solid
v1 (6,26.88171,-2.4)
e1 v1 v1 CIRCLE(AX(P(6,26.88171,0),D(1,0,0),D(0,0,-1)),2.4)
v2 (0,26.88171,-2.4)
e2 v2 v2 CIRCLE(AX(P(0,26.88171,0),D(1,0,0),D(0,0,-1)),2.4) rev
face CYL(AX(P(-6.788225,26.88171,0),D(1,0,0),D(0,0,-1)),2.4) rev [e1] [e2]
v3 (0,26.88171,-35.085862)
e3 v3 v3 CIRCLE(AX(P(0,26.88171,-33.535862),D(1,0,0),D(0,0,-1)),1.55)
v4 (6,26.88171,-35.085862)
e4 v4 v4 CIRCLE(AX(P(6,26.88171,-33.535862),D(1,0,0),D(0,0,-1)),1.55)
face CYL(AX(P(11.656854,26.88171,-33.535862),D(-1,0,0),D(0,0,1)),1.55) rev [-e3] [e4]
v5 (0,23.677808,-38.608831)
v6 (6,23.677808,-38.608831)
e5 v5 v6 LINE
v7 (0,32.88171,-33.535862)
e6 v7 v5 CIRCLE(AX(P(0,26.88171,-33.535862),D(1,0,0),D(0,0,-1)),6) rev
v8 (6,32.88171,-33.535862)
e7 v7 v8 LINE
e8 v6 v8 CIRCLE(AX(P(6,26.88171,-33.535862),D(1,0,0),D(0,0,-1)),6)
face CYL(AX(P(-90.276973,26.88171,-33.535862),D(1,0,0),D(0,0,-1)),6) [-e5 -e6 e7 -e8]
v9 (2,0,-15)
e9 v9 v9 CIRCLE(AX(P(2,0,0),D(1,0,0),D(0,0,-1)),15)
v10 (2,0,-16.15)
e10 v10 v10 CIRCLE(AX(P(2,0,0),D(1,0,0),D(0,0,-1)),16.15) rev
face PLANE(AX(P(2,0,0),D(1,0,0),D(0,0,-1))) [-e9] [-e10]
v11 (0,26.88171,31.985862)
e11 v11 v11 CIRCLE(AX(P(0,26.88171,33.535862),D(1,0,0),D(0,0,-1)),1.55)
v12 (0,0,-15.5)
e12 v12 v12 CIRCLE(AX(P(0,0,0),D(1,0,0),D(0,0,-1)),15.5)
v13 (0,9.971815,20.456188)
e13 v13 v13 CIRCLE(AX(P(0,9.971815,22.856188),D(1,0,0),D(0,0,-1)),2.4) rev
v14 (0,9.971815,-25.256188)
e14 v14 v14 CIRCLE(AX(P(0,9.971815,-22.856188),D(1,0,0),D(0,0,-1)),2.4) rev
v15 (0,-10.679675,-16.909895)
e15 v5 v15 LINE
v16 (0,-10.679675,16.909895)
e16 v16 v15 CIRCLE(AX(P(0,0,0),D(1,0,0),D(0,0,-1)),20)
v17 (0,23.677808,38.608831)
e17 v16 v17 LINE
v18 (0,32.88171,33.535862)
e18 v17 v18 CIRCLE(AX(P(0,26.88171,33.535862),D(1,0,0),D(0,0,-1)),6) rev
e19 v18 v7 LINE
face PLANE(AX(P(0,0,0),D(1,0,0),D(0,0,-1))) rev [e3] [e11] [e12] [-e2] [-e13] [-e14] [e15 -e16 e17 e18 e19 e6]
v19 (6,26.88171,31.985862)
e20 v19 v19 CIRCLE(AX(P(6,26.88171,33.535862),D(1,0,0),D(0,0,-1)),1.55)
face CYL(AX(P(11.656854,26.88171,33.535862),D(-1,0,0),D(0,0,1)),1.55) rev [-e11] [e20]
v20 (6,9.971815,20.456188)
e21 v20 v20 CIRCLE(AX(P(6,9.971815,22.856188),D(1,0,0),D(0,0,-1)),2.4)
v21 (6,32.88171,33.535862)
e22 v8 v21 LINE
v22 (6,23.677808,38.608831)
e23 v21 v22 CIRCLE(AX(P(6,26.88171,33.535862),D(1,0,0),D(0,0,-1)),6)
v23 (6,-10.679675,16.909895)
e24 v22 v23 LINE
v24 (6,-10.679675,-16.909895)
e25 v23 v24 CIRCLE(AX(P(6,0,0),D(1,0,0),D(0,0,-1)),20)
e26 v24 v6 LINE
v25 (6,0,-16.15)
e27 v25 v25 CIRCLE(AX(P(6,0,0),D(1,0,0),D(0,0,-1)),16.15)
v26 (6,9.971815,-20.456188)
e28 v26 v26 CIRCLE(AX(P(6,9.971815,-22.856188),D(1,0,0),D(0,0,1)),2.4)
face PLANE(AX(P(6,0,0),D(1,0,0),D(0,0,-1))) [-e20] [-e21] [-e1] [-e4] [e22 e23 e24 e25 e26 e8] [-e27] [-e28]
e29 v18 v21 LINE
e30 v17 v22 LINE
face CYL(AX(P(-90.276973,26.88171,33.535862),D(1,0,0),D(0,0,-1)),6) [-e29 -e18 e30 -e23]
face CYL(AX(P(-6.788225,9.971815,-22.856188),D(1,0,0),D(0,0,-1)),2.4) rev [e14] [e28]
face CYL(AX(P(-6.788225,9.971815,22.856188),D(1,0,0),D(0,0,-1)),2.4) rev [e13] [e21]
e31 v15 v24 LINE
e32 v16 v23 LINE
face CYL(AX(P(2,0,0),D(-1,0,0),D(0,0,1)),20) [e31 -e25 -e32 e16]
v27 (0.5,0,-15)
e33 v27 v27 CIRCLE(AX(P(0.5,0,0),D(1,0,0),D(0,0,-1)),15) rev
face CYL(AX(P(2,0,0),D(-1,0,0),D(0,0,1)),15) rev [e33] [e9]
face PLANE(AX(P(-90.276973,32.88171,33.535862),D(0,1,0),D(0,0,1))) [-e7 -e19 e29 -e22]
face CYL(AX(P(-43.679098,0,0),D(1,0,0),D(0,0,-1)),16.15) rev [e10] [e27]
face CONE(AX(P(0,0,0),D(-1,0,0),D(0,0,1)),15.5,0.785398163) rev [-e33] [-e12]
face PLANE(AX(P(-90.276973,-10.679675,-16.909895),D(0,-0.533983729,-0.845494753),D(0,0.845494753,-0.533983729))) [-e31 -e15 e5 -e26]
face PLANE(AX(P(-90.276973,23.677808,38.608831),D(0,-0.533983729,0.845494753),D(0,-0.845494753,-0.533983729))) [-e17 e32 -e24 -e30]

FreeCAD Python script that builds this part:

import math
import FreeCAD as App
import Part
import Sketcher

V = App.Vector


def edges_at(feature, points):
    """Names of the edges that pass closest to the given points."""
    edges = feature.Shape.Edges
    near = lambda p: min(range(len(edges)), key=lambda i: edges[i].distToShape(Part.Vertex(*p))[0])
    return sorted({f"Edge{near(p) + 1}" for p in points})

doc = App.newDocument("Part")
params = doc.addObject("Spreadsheet::Sheet", "Params")
for row, (alias, value) in enumerate([
    ("sketch1_diameter", "40 mm"),
    ("sketch1_diameter2", "30 mm"),
    ("pad1_length", "2 mm"),
    ("sketch2_diameter", "40 mm"),
    ("sketch2_diameter2", "32 mm"),
    ("pad2_length", "4 mm"),
    ("sketch3_diameter", "4 mm"),
    ("sketch3_radius", "20 mm"),
    ("sketch3_radius2", "6 mm"),
    ("pad3_length", "6 mm"),
    ("sketch4_diameter", "4.8 mm"),
    ("pocket1_length", "6 mm"),
    ("sketch5_diameter", "4 mm"),
    ("sketch5_diameter2", "3.1 mm"),
    ("pad4_length", "6 mm"),
    ("sketch6_diameter", "32 mm"),
    ("sketch6_diameter2", "32.3 mm"),
    ("pocket2_length", "4 mm"),
    ("chamfer_size", "0.5 mm"),
], start=1):
    params.set(f"A{row}", alias)
    params.set(f"B{row}", "=" + value)
    params.setAlias(f"B{row}", alias)

body = doc.addObject("PartDesign::Body", "Body")

# Sketch on YZ plane
sketch1 = body.newObject("Sketcher::SketchObject", "Sketch")
sketch1.AttachmentSupport = (doc.getObject("YZ_Plane"), [""])
sketch1.MapMode = "FlatFace"
sketch1.addGeometry([
    Part.Circle(V(0, 0, 0), V(0, 0, 1), 20),
    Part.Circle(V(0, 0, 0), V(0, 0, 1), 15),
], False)
sketch1.addConstraint([
    Sketcher.Constraint("Coincident", 0, 3, -1, 1),
    Sketcher.Constraint("Coincident", 1, 3, -1, 1),
    Sketcher.Constraint("Diameter", 0, 40.0),
    Sketcher.Constraint("Diameter", 1, 30.0),
])
sketch1.setExpression("Constraints[2]", "Params.sketch1_diameter")
sketch1.setExpression("Constraints[3]", "Params.sketch1_diameter2")
pad1 = body.newObject("PartDesign::Pad", "Pad")
pad1.Profile = sketch1
pad1.setExpression("Length", "Params.pad1_length")

# Sketch on YZ plane
sketch2 = body.newObject("Sketcher::SketchObject", "Sketch001")
sketch2.AttachmentSupport = (doc.getObject("YZ_Plane"), [""])
sketch2.MapMode = "FlatFace"
sketch2.AttachmentOffset = App.Placement(V(0, 0, 2), App.Rotation())
sketch2.addGeometry([
    Part.Circle(V(0, 0, 0), V(0, 0, 1), 20),
    Part.Circle(V(0, 0, 0), V(0, 0, 1), 16),
], False)
sketch2.addConstraint([
    Sketcher.Constraint("Coincident", 0, 3, -1, 1),
    Sketcher.Constraint("Coincident", 1, 3, -1, 1),
    Sketcher.Constraint("Diameter", 0, 40.0),
    Sketcher.Constraint("Diameter", 1, 32.0),
])
sketch2.setExpression("Constraints[2]", "Params.sketch2_diameter")
sketch2.setExpression("Constraints[3]", "Params.sketch2_diameter2")
pad2 = body.newObject("PartDesign::Pad", "Pad001")
pad2.Profile = sketch2
pad2.setExpression("Length", "Params.pad2_length")

# Sketch on YZ plane
sketch3 = body.newObject("Sketcher::SketchObject", "Sketch002")
sketch3.AttachmentSupport = (doc.getObject("YZ_Plane"), [""])
sketch3.MapMode = "FlatFace"
sketch3.AttachmentOffset = App.Placement(V(0, 0, 6), App.Rotation())
sketch3.addGeometry([
    Part.LineSegment(V(23.7, 38.6, 0), V(-10.7, 16.9, 0)),  # 0
    Part.ArcOfCircle(Part.Circle(V(0, 0, 0), V(0, 0, 1), 20), math.radians(-122), math.radians(122)),  # 1
    Part.LineSegment(V(-10.7, -16.9, 0), V(23.7, -38.6, 0)),  # 2
    Part.ArcOfCircle(Part.Circle(V(26.9, -33.5, 0), V(0, 0, 1), 6), math.radians(-122), math.radians(0)),  # 3
    Part.LineSegment(V(32.9, -33.5, 0), V(32.9, 33.5, 0)),  # 4
    Part.ArcOfCircle(Part.Circle(V(26.9, 33.5, 0), V(0, 0, 1), 6), math.radians(0), math.radians(122)),  # 5
    Part.Circle(V(26.9, 33.5, 0), V(0, 0, 1), 2),  # 6
    Part.Circle(V(26.9, -33.5, 0), V(0, 0, 1), 2),  # 7
], False)
sketch3.addConstraint([
    Sketcher.Constraint("Tangent", 0, 2, 1, 2),
    Sketcher.Constraint("Tangent", 1, 1, 2, 1),
    Sketcher.Constraint("Tangent", 2, 2, 3, 1),
    Sketcher.Constraint("Tangent", 3, 2, 4, 1),
    Sketcher.Constraint("Tangent", 4, 2, 5, 1),
    Sketcher.Constraint("Tangent", 5, 2, 0, 1),
    Sketcher.Constraint("Vertical", 4),
    Sketcher.Constraint("Coincident", 1, 3, -1, 1),
    Sketcher.Constraint("Coincident", 6, 3, 5, 3),
    Sketcher.Constraint("Coincident", 7, 3, 3, 3),
    Sketcher.Constraint("Equal", 3, 5),
    Sketcher.Constraint("Equal", 6, 7),
    Sketcher.Constraint("Vertical", 0, 2, 1, 1),
    Sketcher.Constraint("Diameter", 6, 4.0),
    Sketcher.Constraint("Radius", 1, 20.0),
    Sketcher.Constraint("Radius", 3, 6.0),
    Sketcher.Constraint("Distance", 0, 40.63595),
    Sketcher.Constraint("DistanceY", 4, 1, 4, 2, 67.071725),
])
sketch3.setExpression("Constraints[13]", "Params.sketch3_diameter")
sketch3.setExpression("Constraints[14]", "Params.sketch3_radius")
sketch3.setExpression("Constraints[15]", "Params.sketch3_radius2")
pad3 = body.newObject("PartDesign::Pad", "Pad002")
pad3.Profile = sketch3
pad3.setExpression("Length", "Params.pad3_length")
pad3.Reversed = True

# Sketch on YZ plane
sketch4 = body.newObject("Sketcher::SketchObject", "Sketch003")
sketch4.AttachmentSupport = (doc.getObject("YZ_Plane"), [""])
sketch4.MapMode = "FlatFace"
sketch4.AttachmentOffset = App.Placement(V(0, 0, 6), App.Rotation())
sketch4.addGeometry([
    Part.Circle(V(10, 22.9, 0), V(0, 0, 1), 2.4),
    Part.Circle(V(10, -22.9, 0), V(0, 0, 1), 2.4),
    Part.Circle(V(26.9, 0, 0), V(0, 0, 1), 2.4),
], False)
sketch4.addConstraint([
    Sketcher.Constraint("Equal", 0, 1),
    Sketcher.Constraint("Equal", 1, 2),
    Sketcher.Constraint("Symmetric", 0, 3, 1, 3, -1),
    Sketcher.Constraint("PointOnObject", 2, 3, -1),
    Sketcher.Constraint("Diameter", 0, 4.8),
    Sketcher.Constraint("DistanceX", -1, 1, 2, 3, 26.88171),
    Sketcher.Constraint("DistanceX", -1, 1, 0, 3, 9.971815),
    Sketcher.Constraint("DistanceY", -1, 1, 0, 3, 22.856188),
])
sketch4.setExpression("Constraints[4]", "Params.sketch4_diameter")
pocket1 = body.newObject("PartDesign::Pocket", "Pocket")
pocket1.Profile = sketch4
pocket1.setExpression("Length", "Params.pocket1_length")

# Sketch on YZ plane
sketch5 = body.newObject("Sketcher::SketchObject", "Sketch004")
sketch5.AttachmentSupport = (doc.getObject("YZ_Plane"), [""])
sketch5.MapMode = "FlatFace"
sketch5.addGeometry([
    Part.Circle(V(26.9, -33.5, 0), V(0, 0, 1), 2),
    Part.Circle(V(26.9, -33.5, 0), V(0, 0, 1), 1.6),
    Part.Circle(V(26.9, 33.5, 0), V(0, 0, 1), 2),
    Part.Circle(V(26.9, 33.5, 0), V(0, 0, 1), 1.6),
], False)
sketch5.addConstraint([
    Sketcher.Constraint("Coincident", 1, 3, 0, 3),
    Sketcher.Constraint("Coincident", 3, 3, 2, 3),
    Sketcher.Constraint("Equal", 0, 2),
    Sketcher.Constraint("Equal", 1, 3),
    Sketcher.Constraint("Symmetric", 0, 3, 2, 3, -1),
    Sketcher.Constraint("Diameter", 0, 4.0),
    Sketcher.Constraint("Diameter", 1, 3.1),
    Sketcher.Constraint("DistanceX", -1, 1, 0, 3, 26.88171),
    Sketcher.Constraint("DistanceY", 0, 3, -1, 1, 33.535862),
])
sketch5.setExpression("Constraints[5]", "Params.sketch5_diameter")
sketch5.setExpression("Constraints[6]", "Params.sketch5_diameter2")
pad4 = body.newObject("PartDesign::Pad", "Pad003")
pad4.Profile = sketch5
pad4.setExpression("Length", "Params.pad4_length")

# Sketch on YZ plane
sketch6 = body.newObject("Sketcher::SketchObject", "Sketch005")
sketch6.AttachmentSupport = (doc.getObject("YZ_Plane"), [""])
sketch6.MapMode = "FlatFace"
sketch6.AttachmentOffset = App.Placement(V(0, 0, 6), App.Rotation())
sketch6.addGeometry([
    Part.Circle(V(0, 0, 0), V(0, 0, 1), 16),
    Part.Circle(V(0, 0, 0), V(0, 0, 1), 16),
], False)
sketch6.addConstraint([
    Sketcher.Constraint("Coincident", 0, 3, -1, 1),
    Sketcher.Constraint("Coincident", 1, 3, -1, 1),
    Sketcher.Constraint("Diameter", 1, 32.0),
    Sketcher.Constraint("Diameter", 0, 32.3),
])
sketch6.setExpression("Constraints[2]", "Params.sketch6_diameter")
sketch6.setExpression("Constraints[3]", "Params.sketch6_diameter2")
pocket2 = body.newObject("PartDesign::Pocket", "Pocket001")
pocket2.Profile = sketch6
pocket2.setExpression("Length", "Params.pocket2_length")
doc.recompute()

chamfer = body.newObject("PartDesign::Chamfer", "Chamfer")
chamfer.Base = (pocket2, edges_at(pocket2, [(0, 0, 15)]))
chamfer.setExpression("Size", "Params.chamfer_size")

doc.recompute()
